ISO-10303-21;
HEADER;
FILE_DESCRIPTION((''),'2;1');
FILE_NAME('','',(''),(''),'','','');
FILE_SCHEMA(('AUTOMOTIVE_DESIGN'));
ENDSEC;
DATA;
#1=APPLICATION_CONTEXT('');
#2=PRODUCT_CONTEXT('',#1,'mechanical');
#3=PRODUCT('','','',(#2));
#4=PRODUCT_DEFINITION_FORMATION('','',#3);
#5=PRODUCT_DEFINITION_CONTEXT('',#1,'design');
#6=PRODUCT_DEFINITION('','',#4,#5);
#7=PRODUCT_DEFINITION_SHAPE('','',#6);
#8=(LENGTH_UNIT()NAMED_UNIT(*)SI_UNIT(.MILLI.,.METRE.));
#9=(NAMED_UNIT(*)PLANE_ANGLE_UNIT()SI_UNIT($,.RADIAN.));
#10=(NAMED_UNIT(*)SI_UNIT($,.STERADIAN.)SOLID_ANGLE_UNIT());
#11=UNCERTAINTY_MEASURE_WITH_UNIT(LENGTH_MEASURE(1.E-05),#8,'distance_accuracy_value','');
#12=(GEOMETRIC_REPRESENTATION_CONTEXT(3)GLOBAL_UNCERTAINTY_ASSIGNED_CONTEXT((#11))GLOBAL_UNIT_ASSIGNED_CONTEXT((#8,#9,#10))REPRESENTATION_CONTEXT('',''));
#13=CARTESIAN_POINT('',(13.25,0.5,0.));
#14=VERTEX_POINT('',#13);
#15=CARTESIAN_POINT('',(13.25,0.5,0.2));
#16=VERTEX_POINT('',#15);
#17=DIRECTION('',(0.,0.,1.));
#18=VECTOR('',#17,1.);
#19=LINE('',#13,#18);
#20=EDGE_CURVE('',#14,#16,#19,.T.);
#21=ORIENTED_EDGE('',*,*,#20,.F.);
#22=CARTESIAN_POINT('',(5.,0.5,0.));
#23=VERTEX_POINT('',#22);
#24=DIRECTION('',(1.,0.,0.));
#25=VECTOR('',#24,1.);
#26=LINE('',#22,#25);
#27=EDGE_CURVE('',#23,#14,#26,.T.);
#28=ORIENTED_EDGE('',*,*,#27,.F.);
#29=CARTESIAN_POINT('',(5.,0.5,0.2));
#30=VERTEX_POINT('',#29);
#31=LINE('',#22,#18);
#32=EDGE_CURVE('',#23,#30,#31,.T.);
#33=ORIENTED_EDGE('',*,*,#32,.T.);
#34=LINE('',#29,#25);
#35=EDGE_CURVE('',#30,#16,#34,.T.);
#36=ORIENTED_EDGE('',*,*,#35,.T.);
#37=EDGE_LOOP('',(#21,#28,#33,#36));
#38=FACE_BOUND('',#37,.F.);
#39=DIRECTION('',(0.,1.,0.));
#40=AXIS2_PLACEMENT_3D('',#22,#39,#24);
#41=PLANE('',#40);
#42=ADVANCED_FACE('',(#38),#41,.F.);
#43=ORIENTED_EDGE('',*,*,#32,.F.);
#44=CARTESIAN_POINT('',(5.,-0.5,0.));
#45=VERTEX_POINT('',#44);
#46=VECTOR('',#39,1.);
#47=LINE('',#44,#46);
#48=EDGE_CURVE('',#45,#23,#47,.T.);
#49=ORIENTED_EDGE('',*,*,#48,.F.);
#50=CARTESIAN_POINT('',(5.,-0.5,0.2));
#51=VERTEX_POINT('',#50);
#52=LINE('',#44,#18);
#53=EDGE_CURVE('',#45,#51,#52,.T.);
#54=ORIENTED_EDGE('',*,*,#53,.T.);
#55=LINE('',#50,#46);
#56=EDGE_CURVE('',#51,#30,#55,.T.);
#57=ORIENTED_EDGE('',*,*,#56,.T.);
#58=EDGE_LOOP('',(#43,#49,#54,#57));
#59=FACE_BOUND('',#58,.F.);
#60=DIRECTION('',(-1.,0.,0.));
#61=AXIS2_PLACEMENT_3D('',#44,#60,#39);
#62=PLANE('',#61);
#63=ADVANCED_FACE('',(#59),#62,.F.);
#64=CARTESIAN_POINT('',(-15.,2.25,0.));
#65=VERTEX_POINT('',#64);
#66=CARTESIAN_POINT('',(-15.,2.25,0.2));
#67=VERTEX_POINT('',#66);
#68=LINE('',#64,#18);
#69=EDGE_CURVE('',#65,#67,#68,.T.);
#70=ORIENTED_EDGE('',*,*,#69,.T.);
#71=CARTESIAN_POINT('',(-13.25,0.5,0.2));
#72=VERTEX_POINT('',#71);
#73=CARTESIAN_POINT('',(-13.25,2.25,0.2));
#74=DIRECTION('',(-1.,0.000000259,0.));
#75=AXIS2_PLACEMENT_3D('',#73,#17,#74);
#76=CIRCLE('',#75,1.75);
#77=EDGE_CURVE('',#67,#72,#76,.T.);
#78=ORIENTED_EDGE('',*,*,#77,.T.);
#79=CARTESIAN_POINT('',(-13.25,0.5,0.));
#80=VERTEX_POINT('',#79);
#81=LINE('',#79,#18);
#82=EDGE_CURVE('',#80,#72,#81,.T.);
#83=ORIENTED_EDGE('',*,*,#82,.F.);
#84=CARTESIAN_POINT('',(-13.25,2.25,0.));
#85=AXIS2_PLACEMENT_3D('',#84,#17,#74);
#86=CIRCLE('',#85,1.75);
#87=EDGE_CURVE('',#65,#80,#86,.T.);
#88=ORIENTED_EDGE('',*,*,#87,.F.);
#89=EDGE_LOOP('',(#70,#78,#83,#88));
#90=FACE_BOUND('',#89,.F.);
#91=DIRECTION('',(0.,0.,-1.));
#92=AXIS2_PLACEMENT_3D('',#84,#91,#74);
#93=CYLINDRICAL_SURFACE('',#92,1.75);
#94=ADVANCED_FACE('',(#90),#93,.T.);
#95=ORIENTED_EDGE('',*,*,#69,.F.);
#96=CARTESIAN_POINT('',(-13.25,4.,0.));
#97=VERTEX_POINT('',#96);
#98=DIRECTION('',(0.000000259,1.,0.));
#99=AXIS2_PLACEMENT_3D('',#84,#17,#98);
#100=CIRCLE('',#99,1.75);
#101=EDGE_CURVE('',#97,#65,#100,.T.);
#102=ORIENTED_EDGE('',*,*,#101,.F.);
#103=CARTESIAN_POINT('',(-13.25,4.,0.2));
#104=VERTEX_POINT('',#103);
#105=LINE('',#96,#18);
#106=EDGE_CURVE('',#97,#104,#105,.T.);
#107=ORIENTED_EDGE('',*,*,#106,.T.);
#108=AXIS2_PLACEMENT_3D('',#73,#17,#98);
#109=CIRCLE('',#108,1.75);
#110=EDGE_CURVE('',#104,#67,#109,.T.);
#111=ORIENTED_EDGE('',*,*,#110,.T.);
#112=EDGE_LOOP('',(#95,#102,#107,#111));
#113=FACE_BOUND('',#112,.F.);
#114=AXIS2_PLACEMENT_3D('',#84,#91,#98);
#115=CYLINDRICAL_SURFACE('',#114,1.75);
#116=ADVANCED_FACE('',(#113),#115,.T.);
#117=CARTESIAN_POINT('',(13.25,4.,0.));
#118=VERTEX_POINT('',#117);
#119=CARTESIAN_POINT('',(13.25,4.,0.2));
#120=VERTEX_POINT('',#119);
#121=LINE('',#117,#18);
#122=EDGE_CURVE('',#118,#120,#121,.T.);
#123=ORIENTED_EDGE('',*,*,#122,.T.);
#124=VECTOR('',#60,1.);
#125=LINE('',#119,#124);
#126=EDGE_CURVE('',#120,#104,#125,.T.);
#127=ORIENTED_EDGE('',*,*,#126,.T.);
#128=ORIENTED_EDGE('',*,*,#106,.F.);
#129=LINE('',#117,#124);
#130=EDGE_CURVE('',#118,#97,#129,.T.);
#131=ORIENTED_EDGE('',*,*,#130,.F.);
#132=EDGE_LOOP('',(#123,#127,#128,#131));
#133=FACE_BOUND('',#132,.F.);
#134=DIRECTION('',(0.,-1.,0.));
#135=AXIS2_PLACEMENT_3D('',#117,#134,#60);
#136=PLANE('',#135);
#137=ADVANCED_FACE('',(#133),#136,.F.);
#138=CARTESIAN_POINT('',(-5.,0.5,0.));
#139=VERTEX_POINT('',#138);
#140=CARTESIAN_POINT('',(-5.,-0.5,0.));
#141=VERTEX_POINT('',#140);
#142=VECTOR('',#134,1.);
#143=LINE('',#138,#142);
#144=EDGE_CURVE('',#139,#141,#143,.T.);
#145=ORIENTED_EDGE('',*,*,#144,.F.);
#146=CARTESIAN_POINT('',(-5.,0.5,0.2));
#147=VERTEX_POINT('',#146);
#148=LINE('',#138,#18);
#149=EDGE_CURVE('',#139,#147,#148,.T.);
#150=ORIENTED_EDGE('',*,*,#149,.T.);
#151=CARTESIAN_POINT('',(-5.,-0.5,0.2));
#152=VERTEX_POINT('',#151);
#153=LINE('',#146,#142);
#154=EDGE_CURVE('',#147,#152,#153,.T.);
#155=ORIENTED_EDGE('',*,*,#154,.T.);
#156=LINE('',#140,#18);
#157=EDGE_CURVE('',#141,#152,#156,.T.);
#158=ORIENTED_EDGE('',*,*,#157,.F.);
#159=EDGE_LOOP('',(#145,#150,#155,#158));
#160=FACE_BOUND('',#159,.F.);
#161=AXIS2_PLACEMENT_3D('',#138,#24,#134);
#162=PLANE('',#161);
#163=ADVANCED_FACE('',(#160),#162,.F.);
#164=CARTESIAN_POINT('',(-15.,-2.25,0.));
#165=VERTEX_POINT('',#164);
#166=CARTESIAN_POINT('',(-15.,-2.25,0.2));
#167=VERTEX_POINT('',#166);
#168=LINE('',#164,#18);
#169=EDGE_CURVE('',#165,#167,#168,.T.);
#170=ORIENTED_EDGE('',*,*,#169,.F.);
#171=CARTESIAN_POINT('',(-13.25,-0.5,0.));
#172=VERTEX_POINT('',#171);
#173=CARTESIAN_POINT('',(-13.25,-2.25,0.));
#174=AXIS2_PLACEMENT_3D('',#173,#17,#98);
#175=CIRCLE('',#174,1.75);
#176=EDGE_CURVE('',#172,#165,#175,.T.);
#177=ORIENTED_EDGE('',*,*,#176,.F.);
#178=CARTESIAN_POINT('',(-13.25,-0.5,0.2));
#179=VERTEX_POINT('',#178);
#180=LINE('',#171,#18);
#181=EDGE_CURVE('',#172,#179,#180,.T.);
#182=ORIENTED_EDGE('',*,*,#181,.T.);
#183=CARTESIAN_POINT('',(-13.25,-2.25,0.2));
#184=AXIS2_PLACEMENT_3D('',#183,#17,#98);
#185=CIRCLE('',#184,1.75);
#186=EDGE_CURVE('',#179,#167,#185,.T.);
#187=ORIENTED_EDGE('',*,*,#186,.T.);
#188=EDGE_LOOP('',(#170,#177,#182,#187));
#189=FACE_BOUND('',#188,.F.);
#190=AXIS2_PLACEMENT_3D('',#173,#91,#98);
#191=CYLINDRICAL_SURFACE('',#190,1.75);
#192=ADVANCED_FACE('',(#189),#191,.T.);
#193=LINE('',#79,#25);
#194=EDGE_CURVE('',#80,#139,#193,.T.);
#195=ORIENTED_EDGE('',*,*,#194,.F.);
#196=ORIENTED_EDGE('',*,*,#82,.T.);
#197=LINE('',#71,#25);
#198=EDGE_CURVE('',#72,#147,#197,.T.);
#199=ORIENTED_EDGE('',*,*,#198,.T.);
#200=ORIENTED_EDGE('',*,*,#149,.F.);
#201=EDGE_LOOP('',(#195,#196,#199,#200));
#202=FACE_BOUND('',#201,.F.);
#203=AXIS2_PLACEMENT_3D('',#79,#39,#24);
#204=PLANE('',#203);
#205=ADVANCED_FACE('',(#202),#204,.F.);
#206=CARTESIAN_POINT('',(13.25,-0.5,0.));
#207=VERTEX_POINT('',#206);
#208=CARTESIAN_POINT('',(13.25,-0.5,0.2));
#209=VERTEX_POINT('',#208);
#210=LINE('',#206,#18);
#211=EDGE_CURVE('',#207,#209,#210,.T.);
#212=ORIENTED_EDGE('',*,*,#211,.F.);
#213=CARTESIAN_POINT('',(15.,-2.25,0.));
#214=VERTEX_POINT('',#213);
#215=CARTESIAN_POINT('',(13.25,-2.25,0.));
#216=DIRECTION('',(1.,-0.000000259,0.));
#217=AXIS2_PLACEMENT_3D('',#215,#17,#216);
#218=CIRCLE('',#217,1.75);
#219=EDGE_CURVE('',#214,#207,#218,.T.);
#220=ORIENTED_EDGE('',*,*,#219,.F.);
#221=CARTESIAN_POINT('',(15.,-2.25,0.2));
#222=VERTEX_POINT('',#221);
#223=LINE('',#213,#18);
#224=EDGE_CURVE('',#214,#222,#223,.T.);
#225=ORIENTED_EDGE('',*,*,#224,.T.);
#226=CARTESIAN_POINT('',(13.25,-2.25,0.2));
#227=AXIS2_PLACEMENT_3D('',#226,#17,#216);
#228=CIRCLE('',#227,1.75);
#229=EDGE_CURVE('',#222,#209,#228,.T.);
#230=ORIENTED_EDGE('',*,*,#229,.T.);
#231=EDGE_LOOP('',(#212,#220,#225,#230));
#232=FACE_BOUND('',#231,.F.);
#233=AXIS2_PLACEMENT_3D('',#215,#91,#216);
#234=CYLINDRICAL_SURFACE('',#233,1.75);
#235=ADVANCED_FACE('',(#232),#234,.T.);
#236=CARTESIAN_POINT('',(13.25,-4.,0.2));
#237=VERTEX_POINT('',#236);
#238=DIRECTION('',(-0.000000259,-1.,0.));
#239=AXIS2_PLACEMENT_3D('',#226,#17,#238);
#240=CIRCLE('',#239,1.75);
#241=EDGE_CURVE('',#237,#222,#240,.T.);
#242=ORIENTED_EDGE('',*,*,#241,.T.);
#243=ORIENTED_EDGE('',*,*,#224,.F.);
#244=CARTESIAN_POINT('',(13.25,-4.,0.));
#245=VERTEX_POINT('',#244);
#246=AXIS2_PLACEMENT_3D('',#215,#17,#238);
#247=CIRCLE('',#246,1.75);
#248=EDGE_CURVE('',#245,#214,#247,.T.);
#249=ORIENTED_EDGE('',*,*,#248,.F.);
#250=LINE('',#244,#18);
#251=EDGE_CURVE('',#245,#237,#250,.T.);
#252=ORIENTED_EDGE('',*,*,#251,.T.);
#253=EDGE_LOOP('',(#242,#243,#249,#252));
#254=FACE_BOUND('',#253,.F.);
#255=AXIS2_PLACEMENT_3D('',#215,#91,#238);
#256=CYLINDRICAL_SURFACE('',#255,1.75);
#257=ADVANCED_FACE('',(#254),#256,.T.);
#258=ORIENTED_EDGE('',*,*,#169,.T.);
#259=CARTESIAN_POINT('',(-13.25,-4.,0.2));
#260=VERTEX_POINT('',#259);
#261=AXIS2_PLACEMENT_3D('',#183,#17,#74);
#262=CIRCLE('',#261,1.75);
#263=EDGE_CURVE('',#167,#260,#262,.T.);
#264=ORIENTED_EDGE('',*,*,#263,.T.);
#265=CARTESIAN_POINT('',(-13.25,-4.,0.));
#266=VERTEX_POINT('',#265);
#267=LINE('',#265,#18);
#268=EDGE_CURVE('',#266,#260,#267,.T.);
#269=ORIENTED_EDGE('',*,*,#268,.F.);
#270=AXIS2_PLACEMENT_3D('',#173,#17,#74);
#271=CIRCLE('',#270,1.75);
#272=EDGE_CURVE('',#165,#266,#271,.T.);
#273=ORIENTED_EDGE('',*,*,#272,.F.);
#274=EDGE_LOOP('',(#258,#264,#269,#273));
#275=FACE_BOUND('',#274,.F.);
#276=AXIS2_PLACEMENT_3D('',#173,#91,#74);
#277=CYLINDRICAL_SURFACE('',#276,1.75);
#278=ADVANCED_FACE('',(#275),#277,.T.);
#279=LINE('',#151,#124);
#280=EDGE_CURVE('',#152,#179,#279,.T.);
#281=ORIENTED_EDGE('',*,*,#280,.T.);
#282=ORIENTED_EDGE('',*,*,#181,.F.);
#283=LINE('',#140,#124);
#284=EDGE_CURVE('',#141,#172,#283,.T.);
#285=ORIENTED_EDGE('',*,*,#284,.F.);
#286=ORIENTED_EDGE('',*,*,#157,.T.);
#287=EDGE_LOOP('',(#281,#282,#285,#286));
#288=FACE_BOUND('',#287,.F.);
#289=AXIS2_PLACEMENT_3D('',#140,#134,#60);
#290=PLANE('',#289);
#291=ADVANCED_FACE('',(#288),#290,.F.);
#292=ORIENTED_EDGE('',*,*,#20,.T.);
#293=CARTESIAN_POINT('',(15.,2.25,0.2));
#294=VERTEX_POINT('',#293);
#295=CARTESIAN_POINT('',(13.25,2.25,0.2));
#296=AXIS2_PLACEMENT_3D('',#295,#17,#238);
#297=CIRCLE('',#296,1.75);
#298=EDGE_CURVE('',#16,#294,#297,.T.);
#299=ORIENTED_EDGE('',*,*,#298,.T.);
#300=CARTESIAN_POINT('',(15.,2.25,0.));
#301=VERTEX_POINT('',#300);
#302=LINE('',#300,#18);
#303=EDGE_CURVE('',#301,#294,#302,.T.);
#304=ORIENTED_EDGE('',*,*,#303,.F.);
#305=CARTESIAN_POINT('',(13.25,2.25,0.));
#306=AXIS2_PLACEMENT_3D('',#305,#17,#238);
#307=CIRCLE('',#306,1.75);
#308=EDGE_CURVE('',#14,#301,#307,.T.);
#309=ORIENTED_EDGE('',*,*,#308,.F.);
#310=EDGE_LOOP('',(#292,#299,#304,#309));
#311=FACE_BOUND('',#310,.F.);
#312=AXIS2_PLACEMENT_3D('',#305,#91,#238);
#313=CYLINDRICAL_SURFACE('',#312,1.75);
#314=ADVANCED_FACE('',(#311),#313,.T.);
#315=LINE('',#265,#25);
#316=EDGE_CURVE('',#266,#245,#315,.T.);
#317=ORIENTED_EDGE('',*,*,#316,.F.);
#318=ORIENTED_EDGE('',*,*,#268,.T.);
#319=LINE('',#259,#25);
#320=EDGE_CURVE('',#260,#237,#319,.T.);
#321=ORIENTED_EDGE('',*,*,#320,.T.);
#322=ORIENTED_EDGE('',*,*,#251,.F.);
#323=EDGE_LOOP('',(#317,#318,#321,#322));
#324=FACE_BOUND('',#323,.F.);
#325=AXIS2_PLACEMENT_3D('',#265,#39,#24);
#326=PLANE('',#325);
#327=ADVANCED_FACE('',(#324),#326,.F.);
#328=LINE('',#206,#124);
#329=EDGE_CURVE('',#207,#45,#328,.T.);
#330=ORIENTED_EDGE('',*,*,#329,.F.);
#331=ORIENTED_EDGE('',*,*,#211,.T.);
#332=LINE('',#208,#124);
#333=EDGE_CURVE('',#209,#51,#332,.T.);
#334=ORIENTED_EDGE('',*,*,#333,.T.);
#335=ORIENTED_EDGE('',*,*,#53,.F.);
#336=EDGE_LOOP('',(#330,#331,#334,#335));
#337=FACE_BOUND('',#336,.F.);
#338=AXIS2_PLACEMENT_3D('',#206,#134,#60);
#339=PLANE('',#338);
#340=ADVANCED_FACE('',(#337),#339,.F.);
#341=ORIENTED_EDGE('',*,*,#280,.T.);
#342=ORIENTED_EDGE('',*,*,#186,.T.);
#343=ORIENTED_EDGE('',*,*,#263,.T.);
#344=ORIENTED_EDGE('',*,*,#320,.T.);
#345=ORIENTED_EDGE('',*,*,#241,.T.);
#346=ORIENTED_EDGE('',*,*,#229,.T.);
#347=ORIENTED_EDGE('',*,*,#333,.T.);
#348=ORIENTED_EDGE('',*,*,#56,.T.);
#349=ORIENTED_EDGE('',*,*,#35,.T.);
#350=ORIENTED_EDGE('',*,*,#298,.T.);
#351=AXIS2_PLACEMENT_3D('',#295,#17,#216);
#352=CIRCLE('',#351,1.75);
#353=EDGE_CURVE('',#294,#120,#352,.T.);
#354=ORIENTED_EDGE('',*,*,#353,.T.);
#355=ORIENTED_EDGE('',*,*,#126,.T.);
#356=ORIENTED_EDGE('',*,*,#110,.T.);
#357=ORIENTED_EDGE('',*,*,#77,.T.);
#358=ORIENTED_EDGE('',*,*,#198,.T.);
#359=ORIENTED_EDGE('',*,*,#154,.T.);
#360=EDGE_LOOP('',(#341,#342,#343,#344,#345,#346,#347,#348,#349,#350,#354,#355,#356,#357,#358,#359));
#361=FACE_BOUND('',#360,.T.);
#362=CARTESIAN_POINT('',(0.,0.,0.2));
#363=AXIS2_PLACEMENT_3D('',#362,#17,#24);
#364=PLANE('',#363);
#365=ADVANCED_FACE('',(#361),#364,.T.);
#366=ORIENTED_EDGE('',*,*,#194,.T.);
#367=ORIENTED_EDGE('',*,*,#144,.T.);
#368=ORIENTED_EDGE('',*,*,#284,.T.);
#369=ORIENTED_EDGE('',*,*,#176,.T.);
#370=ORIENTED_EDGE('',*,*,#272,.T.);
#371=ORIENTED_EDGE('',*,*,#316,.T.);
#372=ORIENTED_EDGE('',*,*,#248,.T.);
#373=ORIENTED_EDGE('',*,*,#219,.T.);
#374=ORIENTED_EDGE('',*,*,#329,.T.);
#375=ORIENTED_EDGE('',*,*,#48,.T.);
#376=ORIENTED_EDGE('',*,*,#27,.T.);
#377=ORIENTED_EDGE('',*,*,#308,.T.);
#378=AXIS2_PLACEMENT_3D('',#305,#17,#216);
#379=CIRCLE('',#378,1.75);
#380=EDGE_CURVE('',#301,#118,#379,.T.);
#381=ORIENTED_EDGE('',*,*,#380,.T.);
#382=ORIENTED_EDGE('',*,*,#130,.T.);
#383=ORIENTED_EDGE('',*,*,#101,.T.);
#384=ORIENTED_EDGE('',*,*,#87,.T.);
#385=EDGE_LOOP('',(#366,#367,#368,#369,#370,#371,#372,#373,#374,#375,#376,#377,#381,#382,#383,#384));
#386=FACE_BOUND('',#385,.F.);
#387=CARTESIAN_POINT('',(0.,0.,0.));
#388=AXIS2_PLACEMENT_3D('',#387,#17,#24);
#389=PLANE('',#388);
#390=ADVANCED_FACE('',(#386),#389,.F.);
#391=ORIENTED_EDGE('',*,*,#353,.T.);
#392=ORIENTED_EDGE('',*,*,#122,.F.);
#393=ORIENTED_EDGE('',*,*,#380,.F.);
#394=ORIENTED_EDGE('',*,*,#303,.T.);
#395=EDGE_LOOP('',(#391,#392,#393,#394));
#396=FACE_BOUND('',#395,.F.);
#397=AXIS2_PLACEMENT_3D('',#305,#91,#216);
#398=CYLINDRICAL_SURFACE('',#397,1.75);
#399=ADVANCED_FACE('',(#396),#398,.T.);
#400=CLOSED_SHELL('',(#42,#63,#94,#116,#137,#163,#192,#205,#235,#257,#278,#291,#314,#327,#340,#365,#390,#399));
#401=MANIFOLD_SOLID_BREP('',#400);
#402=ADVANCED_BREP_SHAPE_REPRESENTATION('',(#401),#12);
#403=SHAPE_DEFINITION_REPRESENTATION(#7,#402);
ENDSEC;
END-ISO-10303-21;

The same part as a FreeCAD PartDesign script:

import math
import FreeCAD as App
import Part
import Sketcher
from FreeCAD import Vector
Q = App.Units.Quantity

doc = App.newDocument("Part")
body = doc.addObject("PartDesign::Body", "Body")

sketch1 = body.newObject("Sketcher::SketchObject", "Sketch")
sketch1.AttachmentSupport = (doc.getObject("XY_Plane"), [""])
sketch1.MapMode = "FlatFace"
sketch1.addGeometry([
    Part.ArcOfCircle(Part.Circle(Vector(13.3, 2.3, 0), Vector(0, 0, 1), 1.7), math.radians(0), math.radians(90)),
    Part.LineSegment(Vector(13.2, 4, 0), Vector(-13.2, 4, 0)),
    Part.ArcOfCircle(Part.Circle(Vector(-13.3, 2.3, 0), Vector(0, 0, 1), 1.7), math.radians(90), math.radians(180)),
    Part.ArcOfCircle(Part.Circle(Vector(-13.3, 2.2, 0), Vector(0, 0, 1), 1.7), math.radians(180), math.radians(270)),
    Part.LineSegment(Vector(-13.2, 0.5, 0), Vector(-5, 0.5, 0)),
    Part.LineSegment(Vector(-5, 0.5, 0), Vector(-5, -0.5, 0)),
    Part.LineSegment(Vector(-5, -0.5, 0), Vector(-13.2, -0.5, 0)),
    Part.ArcOfCircle(Part.Circle(Vector(-13.3, -2.2, 0), Vector(0, 0, 1), 1.7), math.radians(90), math.radians(180)),
    Part.ArcOfCircle(Part.Circle(Vector(-13.3, -2.3, 0), Vector(0, 0, 1), 1.7), math.radians(180), math.radians(270)),
    Part.LineSegment(Vector(-13.2, -4, 0), Vector(13.2, -4, 0)),
    Part.ArcOfCircle(Part.Circle(Vector(13.3, -2.3, 0), Vector(0, 0, 1), 1.7), math.radians(-90), math.radians(0)),
    Part.ArcOfCircle(Part.Circle(Vector(13.3, -2.2, 0), Vector(0, 0, 1), 1.7), math.radians(0), math.radians(90)),
    Part.LineSegment(Vector(13.2, -0.5, 0), Vector(5, -0.5, 0)),
    Part.LineSegment(Vector(5, -0.5, 0), Vector(5, 0.5, 0)),
    Part.LineSegment(Vector(5, 0.5, 0), Vector(13.2, 0.5, 0)),
    Part.ArcOfCircle(Part.Circle(Vector(13.3, 2.2, 0), Vector(0, 0, 1), 1.7), math.radians(-90), math.radians(0)),
], False)
sketch1.addConstraint([
    Sketcher.Constraint("Tangent", 0, 2, 1, 1),
    Sketcher.Constraint("Tangent", 1, 2, 2, 1),
    Sketcher.Constraint("Tangent", 2, 2, 3, 1),
    Sketcher.Constraint("Tangent", 3, 2, 4, 1),
    Sketcher.Constraint("Coincident", 4, 2, 5, 1),
    Sketcher.Constraint("Coincident", 5, 2, 6, 1),
    Sketcher.Constraint("Tangent", 6, 2, 7, 1),
    Sketcher.Constraint("Tangent", 7, 2, 8, 1),
    Sketcher.Constraint("Tangent", 8, 2, 9, 1),
    Sketcher.Constraint("Tangent", 9, 2, 10, 1),
    Sketcher.Constraint("Tangent", 10, 2, 11, 1),
    Sketcher.Constraint("Tangent", 11, 2, 12, 1),
    Sketcher.Constraint("Coincident", 12, 2, 13, 1),
    Sketcher.Constraint("Coincident", 13, 2, 14, 1),
    Sketcher.Constraint("Tangent", 14, 2, 15, 1),
    Sketcher.Constraint("Tangent", 15, 2, 0, 1),
    Sketcher.Constraint("Horizontal", 1),
    Sketcher.Constraint("Horizontal", 4),
    Sketcher.Constraint("Vertical", 5),
    Sketcher.Constraint("Horizontal", 6),
    Sketcher.Constraint("Horizontal", 9),
    Sketcher.Constraint("Horizontal", 12),
    Sketcher.Constraint("Vertical", 13),
    Sketcher.Constraint("Horizontal", 14),
    Sketcher.Constraint("Equal", 0, 2),
    Sketcher.Constraint("Equal", 2, 3),
    Sketcher.Constraint("Equal", 3, 7),
    Sketcher.Constraint("Equal", 7, 8),
    Sketcher.Constraint("Equal", 8, 10),
    Sketcher.Constraint("Equal", 10, 11),
    Sketcher.Constraint("Equal", 11, 15),
    Sketcher.Constraint("Symmetric", 0, 3, 7, 3, -1, 1),
    Sketcher.Constraint("Symmetric", 2, 2, 10, 2, -1, 1),
    Sketcher.Constraint("Symmetric", 7, 2, 10, 2, -2),
    Sketcher.Constraint("Horizontal", 15, 3, 2, 2),
    Sketcher.Constraint("Horizontal", 2, 2, 15, 2),
    Sketcher.Constraint("Equal", 6, 12),
    Sketcher.Constraint("DistanceY", 5, 2, 5, 1, Q("1 mm")),
    Sketcher.Constraint("Radius", 0, Q("1.75 mm")),
    Sketcher.Constraint("DistanceX", 1, 2, 1, 1, Q("26.5 mm")),
    Sketcher.Constraint("DistanceX", 4, 2, -1, 1, Q("5 mm")),
])
pad1 = body.newObject("PartDesign::Pad", "Pad")
pad1.Profile = sketch1
pad1.Length = 0.2

doc.recompute()
